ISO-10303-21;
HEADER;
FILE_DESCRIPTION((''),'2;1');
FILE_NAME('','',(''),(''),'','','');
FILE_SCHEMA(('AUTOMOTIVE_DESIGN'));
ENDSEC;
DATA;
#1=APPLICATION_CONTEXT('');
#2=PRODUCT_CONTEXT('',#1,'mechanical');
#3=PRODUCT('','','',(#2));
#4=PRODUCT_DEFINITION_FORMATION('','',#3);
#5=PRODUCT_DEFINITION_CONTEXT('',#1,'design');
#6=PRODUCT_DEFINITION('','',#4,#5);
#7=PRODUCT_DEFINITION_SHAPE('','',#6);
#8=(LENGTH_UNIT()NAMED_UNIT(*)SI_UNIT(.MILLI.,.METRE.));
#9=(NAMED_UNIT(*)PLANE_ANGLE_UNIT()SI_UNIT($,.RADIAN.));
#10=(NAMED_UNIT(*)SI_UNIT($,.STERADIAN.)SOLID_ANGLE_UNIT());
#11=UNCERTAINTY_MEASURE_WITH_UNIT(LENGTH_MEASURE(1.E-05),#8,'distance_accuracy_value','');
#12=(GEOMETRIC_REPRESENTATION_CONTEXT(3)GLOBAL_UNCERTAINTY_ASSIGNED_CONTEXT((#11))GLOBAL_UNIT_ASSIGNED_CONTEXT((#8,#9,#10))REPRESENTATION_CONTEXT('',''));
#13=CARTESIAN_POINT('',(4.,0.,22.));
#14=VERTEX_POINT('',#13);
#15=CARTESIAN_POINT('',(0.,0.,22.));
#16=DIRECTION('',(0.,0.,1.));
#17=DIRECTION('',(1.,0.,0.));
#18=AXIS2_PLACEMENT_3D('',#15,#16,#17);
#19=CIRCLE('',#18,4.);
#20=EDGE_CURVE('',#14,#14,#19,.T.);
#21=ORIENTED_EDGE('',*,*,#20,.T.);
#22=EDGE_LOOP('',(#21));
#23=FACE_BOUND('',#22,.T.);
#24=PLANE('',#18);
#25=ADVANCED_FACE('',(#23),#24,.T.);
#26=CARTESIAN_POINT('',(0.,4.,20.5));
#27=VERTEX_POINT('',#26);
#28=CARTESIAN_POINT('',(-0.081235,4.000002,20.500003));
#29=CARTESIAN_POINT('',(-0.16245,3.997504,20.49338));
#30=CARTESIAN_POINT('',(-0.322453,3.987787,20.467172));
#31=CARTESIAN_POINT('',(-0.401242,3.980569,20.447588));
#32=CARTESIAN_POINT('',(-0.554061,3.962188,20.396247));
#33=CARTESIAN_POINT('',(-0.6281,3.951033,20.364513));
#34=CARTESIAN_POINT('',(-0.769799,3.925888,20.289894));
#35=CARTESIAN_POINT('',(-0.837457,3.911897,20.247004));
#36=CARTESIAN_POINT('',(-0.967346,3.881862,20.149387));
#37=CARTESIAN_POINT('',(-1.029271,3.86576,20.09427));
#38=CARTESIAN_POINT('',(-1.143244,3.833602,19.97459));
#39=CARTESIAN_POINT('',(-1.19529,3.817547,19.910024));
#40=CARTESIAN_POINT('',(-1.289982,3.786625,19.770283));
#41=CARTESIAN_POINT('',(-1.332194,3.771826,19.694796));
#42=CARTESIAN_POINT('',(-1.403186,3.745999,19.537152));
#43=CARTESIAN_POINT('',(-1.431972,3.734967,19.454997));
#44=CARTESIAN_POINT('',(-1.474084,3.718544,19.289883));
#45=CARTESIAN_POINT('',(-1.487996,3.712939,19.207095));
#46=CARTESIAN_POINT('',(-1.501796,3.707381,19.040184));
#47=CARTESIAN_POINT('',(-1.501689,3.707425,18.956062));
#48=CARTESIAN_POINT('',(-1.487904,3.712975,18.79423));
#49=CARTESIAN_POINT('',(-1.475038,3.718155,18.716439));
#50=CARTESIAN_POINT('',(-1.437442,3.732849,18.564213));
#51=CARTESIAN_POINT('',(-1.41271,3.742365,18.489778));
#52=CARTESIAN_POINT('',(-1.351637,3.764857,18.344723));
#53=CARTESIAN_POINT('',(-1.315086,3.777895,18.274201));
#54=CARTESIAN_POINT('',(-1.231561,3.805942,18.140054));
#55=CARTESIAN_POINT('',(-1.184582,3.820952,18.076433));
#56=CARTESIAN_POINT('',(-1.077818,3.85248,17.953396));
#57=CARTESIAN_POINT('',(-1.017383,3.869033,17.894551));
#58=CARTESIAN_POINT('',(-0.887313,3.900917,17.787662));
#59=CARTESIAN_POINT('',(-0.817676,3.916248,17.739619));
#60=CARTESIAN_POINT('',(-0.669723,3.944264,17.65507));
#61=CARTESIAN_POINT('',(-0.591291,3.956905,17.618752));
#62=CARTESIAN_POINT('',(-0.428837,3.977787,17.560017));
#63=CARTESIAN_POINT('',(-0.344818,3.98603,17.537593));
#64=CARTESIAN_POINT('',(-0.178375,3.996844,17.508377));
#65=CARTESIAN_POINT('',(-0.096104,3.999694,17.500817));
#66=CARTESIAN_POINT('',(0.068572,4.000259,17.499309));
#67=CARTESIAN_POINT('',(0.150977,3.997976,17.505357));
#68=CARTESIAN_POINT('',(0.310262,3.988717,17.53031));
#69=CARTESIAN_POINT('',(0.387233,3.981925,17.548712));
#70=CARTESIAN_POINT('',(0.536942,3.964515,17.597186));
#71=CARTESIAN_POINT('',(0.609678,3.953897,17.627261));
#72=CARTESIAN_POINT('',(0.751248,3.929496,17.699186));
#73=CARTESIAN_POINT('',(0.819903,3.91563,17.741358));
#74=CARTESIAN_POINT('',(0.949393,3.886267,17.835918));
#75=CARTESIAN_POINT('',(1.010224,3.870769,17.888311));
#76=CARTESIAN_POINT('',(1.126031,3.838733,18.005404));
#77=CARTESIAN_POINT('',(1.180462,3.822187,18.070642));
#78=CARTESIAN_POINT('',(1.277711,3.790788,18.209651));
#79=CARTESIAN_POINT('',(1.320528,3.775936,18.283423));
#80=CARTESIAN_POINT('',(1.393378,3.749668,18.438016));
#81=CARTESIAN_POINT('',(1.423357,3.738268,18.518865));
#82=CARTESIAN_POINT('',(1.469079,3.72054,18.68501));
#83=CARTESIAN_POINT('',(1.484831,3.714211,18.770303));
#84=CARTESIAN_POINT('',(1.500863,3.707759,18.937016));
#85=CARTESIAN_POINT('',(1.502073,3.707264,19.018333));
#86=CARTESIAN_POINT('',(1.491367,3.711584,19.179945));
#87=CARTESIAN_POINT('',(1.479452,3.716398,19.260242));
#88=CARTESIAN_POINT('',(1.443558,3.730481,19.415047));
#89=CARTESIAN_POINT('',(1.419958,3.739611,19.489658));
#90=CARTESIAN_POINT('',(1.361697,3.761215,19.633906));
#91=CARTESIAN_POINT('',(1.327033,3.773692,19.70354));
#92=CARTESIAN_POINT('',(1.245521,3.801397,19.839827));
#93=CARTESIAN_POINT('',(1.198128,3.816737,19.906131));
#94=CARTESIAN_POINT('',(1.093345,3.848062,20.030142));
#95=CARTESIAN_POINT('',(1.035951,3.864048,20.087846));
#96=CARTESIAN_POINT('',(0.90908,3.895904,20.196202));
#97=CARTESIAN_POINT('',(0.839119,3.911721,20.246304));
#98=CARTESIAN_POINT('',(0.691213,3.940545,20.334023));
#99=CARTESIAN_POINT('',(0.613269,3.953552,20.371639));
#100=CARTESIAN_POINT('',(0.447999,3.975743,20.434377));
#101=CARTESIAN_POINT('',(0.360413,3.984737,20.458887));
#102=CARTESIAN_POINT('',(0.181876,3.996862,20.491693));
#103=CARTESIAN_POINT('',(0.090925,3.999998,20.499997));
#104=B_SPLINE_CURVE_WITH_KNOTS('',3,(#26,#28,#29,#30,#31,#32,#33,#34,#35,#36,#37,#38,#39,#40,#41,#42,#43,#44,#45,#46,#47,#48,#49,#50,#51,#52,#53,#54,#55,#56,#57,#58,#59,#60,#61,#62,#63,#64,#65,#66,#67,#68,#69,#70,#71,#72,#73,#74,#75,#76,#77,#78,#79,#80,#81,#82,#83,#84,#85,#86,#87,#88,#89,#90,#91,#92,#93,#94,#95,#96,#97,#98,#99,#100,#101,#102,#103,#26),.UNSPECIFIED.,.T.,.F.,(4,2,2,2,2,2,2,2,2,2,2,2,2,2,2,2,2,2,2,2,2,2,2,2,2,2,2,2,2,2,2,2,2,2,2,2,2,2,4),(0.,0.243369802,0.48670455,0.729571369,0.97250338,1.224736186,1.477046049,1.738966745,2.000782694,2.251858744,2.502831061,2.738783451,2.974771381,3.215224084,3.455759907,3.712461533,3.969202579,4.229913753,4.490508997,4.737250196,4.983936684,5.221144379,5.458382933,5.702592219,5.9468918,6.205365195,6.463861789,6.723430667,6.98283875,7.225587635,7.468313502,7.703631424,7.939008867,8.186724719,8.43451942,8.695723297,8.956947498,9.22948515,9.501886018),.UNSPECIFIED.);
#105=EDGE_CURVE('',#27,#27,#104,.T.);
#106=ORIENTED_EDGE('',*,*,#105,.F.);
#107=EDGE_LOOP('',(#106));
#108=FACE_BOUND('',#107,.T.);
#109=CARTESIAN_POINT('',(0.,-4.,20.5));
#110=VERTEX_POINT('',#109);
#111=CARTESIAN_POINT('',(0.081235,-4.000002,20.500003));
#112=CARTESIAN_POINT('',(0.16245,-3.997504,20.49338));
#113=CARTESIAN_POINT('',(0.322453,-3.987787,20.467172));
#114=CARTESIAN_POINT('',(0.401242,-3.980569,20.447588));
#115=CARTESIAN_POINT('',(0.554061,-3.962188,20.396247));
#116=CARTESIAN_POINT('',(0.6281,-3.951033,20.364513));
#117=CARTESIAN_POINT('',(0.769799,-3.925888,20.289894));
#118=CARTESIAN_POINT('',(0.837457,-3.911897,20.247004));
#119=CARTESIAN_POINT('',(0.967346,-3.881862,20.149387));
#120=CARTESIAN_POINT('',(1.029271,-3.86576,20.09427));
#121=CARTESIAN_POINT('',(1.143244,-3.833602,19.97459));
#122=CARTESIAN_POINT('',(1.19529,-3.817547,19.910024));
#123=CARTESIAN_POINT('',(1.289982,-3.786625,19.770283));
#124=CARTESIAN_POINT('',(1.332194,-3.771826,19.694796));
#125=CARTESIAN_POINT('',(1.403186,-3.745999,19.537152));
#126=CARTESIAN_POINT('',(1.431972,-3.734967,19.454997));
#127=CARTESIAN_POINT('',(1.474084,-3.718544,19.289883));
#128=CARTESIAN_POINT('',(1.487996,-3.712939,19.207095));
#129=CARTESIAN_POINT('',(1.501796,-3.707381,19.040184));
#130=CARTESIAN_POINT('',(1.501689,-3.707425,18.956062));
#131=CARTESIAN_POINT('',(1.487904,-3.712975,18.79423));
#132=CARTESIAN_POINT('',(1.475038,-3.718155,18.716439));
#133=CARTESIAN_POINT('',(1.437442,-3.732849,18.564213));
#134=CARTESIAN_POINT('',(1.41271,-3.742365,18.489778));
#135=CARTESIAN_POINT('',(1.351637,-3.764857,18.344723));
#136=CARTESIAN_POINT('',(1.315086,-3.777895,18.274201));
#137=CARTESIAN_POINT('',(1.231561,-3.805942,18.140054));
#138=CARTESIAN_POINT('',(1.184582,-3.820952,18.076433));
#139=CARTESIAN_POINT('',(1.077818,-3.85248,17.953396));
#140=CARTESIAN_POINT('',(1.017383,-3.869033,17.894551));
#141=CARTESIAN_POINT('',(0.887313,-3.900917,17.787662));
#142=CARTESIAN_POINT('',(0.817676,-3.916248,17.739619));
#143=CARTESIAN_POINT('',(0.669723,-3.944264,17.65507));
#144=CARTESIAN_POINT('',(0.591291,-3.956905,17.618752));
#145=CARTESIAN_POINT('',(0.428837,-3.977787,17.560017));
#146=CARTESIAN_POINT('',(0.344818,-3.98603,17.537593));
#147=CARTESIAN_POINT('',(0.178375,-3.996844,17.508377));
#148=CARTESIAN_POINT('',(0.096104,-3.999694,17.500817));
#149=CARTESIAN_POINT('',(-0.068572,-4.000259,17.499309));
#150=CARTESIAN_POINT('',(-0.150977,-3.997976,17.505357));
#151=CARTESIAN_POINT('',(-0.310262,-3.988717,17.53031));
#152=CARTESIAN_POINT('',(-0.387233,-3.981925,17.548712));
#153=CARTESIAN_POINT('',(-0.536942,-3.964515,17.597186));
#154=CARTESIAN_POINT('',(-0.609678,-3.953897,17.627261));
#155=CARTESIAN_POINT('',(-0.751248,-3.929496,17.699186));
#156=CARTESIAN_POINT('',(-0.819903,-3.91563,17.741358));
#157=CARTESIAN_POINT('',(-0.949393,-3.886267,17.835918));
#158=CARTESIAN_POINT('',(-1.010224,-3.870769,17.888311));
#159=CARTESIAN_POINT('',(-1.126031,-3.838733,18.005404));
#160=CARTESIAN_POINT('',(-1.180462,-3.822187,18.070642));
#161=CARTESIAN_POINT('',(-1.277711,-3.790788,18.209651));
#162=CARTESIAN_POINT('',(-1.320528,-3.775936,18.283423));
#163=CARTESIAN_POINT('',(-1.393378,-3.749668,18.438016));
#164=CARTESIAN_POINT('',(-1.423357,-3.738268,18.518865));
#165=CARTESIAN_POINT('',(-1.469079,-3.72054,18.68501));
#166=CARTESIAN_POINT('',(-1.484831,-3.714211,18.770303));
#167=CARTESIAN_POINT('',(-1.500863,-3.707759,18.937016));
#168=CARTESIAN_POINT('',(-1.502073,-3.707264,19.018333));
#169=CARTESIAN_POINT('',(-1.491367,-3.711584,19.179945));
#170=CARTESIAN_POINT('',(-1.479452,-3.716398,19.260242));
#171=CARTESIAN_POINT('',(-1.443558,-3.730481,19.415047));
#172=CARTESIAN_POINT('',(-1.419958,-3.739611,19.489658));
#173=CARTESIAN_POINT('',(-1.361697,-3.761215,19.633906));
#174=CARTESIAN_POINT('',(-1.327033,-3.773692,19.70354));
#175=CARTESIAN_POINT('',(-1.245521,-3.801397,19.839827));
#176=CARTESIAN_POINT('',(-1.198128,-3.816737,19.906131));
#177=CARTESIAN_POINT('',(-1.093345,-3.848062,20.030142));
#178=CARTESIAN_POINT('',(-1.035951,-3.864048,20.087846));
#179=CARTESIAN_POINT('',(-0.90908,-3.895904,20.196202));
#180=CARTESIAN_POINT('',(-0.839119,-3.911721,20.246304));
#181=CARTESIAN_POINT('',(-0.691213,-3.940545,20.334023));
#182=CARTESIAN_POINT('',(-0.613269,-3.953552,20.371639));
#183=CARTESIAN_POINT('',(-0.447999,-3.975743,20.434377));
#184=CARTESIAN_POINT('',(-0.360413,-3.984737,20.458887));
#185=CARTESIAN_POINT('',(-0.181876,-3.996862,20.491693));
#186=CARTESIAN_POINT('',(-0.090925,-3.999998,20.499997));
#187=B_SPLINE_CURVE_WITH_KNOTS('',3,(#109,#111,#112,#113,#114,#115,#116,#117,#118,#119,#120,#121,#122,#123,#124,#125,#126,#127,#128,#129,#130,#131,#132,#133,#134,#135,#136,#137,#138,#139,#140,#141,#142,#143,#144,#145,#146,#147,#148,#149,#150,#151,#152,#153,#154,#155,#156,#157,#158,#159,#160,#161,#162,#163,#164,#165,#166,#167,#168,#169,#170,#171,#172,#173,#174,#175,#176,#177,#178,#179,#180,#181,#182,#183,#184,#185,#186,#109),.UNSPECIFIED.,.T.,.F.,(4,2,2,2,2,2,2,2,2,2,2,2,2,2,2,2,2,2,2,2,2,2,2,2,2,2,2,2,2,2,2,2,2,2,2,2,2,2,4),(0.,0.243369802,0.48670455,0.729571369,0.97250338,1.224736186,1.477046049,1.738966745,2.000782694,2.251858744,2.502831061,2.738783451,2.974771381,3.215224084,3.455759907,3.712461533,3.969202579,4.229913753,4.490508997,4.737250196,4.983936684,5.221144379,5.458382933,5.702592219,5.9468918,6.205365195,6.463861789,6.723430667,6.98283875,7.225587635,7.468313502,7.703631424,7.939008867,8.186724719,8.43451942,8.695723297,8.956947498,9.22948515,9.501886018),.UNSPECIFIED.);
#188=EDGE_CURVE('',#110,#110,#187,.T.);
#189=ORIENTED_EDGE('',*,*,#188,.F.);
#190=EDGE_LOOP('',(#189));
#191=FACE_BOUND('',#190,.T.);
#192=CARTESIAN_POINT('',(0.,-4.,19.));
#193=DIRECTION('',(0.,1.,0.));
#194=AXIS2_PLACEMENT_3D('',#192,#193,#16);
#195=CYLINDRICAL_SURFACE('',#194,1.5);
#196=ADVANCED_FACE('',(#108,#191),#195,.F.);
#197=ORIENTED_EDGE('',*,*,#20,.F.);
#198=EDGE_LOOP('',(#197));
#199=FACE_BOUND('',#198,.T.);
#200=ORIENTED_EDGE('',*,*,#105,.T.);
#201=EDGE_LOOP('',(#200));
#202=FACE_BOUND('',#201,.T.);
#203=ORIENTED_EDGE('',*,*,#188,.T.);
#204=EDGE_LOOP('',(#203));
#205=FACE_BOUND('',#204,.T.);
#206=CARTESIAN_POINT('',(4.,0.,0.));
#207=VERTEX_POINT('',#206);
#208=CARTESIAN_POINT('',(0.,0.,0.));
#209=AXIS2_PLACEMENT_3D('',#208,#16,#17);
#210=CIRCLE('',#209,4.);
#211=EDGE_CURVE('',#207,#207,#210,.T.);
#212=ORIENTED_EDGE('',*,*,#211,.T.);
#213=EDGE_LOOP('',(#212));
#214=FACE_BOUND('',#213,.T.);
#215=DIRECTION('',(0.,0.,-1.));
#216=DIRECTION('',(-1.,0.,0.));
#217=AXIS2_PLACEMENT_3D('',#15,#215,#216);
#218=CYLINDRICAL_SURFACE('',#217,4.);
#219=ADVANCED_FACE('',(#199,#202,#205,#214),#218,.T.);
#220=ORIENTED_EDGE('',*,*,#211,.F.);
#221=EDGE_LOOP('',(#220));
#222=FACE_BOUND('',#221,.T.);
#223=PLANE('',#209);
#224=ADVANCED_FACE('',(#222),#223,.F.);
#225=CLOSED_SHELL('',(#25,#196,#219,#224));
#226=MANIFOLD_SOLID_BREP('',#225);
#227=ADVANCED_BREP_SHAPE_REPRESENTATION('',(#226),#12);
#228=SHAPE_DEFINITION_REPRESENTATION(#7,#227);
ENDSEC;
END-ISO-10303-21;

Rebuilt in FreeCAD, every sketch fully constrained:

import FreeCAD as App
import Part
import Sketcher
Q = App.Units.Quantity

doc = App.newDocument("Part")
body = doc.addObject("PartDesign::Body", "Body")

# Sketch on XY plane
sketch1 = body.newObject("Sketcher::SketchObject", "Sketch")
sketch1.AttachmentSupport = (doc.getObject("XY_Plane"), [""])
sketch1.MapMode = "FlatFace"
sketch1.addGeometry(Part.Circle(App.Vector(0, 0, 0), App.Vector(0, 0, 1), 4), False)
sketch1.addConstraint(Sketcher.Constraint("Coincident", 0, 3, -1, 1))
sketch1.addConstraint(Sketcher.Constraint("Diameter", 0, Q("8 mm")))
pad1 = body.newObject("PartDesign::Pad", "Pad")
pad1.Profile = sketch1
pad1.Length = 22

# Sketch on XZ plane
sketch2 = body.newObject("Sketcher::SketchObject", "Sketch001")
sketch2.AttachmentSupport = (doc.getObject("XZ_Plane"), [""])
sketch2.MapMode = "FlatFace"
sketch2.AttachmentOffset = App.Placement(App.Vector(0, 0, -4), App.Rotation())
sketch2.addGeometry(Part.Circle(App.Vector(0, 19, 0), App.Vector(0, 0, 1), 1.5), False)
sketch2.addConstraint(Sketcher.Constraint("PointOnObject", 0, 3, -2))
sketch2.addConstraint(Sketcher.Constraint("Diameter", 0, Q("3 mm")))
sketch2.addConstraint(Sketcher.Constraint("DistanceY", -1, 1, 0, 3, Q("19 mm")))
pocket1 = body.newObject("PartDesign::Pocket", "Pocket")
pocket1.Profile = sketch2
pocket1.Type = "ThroughAll"
pocket1.Reversed = True

doc.recompute()
